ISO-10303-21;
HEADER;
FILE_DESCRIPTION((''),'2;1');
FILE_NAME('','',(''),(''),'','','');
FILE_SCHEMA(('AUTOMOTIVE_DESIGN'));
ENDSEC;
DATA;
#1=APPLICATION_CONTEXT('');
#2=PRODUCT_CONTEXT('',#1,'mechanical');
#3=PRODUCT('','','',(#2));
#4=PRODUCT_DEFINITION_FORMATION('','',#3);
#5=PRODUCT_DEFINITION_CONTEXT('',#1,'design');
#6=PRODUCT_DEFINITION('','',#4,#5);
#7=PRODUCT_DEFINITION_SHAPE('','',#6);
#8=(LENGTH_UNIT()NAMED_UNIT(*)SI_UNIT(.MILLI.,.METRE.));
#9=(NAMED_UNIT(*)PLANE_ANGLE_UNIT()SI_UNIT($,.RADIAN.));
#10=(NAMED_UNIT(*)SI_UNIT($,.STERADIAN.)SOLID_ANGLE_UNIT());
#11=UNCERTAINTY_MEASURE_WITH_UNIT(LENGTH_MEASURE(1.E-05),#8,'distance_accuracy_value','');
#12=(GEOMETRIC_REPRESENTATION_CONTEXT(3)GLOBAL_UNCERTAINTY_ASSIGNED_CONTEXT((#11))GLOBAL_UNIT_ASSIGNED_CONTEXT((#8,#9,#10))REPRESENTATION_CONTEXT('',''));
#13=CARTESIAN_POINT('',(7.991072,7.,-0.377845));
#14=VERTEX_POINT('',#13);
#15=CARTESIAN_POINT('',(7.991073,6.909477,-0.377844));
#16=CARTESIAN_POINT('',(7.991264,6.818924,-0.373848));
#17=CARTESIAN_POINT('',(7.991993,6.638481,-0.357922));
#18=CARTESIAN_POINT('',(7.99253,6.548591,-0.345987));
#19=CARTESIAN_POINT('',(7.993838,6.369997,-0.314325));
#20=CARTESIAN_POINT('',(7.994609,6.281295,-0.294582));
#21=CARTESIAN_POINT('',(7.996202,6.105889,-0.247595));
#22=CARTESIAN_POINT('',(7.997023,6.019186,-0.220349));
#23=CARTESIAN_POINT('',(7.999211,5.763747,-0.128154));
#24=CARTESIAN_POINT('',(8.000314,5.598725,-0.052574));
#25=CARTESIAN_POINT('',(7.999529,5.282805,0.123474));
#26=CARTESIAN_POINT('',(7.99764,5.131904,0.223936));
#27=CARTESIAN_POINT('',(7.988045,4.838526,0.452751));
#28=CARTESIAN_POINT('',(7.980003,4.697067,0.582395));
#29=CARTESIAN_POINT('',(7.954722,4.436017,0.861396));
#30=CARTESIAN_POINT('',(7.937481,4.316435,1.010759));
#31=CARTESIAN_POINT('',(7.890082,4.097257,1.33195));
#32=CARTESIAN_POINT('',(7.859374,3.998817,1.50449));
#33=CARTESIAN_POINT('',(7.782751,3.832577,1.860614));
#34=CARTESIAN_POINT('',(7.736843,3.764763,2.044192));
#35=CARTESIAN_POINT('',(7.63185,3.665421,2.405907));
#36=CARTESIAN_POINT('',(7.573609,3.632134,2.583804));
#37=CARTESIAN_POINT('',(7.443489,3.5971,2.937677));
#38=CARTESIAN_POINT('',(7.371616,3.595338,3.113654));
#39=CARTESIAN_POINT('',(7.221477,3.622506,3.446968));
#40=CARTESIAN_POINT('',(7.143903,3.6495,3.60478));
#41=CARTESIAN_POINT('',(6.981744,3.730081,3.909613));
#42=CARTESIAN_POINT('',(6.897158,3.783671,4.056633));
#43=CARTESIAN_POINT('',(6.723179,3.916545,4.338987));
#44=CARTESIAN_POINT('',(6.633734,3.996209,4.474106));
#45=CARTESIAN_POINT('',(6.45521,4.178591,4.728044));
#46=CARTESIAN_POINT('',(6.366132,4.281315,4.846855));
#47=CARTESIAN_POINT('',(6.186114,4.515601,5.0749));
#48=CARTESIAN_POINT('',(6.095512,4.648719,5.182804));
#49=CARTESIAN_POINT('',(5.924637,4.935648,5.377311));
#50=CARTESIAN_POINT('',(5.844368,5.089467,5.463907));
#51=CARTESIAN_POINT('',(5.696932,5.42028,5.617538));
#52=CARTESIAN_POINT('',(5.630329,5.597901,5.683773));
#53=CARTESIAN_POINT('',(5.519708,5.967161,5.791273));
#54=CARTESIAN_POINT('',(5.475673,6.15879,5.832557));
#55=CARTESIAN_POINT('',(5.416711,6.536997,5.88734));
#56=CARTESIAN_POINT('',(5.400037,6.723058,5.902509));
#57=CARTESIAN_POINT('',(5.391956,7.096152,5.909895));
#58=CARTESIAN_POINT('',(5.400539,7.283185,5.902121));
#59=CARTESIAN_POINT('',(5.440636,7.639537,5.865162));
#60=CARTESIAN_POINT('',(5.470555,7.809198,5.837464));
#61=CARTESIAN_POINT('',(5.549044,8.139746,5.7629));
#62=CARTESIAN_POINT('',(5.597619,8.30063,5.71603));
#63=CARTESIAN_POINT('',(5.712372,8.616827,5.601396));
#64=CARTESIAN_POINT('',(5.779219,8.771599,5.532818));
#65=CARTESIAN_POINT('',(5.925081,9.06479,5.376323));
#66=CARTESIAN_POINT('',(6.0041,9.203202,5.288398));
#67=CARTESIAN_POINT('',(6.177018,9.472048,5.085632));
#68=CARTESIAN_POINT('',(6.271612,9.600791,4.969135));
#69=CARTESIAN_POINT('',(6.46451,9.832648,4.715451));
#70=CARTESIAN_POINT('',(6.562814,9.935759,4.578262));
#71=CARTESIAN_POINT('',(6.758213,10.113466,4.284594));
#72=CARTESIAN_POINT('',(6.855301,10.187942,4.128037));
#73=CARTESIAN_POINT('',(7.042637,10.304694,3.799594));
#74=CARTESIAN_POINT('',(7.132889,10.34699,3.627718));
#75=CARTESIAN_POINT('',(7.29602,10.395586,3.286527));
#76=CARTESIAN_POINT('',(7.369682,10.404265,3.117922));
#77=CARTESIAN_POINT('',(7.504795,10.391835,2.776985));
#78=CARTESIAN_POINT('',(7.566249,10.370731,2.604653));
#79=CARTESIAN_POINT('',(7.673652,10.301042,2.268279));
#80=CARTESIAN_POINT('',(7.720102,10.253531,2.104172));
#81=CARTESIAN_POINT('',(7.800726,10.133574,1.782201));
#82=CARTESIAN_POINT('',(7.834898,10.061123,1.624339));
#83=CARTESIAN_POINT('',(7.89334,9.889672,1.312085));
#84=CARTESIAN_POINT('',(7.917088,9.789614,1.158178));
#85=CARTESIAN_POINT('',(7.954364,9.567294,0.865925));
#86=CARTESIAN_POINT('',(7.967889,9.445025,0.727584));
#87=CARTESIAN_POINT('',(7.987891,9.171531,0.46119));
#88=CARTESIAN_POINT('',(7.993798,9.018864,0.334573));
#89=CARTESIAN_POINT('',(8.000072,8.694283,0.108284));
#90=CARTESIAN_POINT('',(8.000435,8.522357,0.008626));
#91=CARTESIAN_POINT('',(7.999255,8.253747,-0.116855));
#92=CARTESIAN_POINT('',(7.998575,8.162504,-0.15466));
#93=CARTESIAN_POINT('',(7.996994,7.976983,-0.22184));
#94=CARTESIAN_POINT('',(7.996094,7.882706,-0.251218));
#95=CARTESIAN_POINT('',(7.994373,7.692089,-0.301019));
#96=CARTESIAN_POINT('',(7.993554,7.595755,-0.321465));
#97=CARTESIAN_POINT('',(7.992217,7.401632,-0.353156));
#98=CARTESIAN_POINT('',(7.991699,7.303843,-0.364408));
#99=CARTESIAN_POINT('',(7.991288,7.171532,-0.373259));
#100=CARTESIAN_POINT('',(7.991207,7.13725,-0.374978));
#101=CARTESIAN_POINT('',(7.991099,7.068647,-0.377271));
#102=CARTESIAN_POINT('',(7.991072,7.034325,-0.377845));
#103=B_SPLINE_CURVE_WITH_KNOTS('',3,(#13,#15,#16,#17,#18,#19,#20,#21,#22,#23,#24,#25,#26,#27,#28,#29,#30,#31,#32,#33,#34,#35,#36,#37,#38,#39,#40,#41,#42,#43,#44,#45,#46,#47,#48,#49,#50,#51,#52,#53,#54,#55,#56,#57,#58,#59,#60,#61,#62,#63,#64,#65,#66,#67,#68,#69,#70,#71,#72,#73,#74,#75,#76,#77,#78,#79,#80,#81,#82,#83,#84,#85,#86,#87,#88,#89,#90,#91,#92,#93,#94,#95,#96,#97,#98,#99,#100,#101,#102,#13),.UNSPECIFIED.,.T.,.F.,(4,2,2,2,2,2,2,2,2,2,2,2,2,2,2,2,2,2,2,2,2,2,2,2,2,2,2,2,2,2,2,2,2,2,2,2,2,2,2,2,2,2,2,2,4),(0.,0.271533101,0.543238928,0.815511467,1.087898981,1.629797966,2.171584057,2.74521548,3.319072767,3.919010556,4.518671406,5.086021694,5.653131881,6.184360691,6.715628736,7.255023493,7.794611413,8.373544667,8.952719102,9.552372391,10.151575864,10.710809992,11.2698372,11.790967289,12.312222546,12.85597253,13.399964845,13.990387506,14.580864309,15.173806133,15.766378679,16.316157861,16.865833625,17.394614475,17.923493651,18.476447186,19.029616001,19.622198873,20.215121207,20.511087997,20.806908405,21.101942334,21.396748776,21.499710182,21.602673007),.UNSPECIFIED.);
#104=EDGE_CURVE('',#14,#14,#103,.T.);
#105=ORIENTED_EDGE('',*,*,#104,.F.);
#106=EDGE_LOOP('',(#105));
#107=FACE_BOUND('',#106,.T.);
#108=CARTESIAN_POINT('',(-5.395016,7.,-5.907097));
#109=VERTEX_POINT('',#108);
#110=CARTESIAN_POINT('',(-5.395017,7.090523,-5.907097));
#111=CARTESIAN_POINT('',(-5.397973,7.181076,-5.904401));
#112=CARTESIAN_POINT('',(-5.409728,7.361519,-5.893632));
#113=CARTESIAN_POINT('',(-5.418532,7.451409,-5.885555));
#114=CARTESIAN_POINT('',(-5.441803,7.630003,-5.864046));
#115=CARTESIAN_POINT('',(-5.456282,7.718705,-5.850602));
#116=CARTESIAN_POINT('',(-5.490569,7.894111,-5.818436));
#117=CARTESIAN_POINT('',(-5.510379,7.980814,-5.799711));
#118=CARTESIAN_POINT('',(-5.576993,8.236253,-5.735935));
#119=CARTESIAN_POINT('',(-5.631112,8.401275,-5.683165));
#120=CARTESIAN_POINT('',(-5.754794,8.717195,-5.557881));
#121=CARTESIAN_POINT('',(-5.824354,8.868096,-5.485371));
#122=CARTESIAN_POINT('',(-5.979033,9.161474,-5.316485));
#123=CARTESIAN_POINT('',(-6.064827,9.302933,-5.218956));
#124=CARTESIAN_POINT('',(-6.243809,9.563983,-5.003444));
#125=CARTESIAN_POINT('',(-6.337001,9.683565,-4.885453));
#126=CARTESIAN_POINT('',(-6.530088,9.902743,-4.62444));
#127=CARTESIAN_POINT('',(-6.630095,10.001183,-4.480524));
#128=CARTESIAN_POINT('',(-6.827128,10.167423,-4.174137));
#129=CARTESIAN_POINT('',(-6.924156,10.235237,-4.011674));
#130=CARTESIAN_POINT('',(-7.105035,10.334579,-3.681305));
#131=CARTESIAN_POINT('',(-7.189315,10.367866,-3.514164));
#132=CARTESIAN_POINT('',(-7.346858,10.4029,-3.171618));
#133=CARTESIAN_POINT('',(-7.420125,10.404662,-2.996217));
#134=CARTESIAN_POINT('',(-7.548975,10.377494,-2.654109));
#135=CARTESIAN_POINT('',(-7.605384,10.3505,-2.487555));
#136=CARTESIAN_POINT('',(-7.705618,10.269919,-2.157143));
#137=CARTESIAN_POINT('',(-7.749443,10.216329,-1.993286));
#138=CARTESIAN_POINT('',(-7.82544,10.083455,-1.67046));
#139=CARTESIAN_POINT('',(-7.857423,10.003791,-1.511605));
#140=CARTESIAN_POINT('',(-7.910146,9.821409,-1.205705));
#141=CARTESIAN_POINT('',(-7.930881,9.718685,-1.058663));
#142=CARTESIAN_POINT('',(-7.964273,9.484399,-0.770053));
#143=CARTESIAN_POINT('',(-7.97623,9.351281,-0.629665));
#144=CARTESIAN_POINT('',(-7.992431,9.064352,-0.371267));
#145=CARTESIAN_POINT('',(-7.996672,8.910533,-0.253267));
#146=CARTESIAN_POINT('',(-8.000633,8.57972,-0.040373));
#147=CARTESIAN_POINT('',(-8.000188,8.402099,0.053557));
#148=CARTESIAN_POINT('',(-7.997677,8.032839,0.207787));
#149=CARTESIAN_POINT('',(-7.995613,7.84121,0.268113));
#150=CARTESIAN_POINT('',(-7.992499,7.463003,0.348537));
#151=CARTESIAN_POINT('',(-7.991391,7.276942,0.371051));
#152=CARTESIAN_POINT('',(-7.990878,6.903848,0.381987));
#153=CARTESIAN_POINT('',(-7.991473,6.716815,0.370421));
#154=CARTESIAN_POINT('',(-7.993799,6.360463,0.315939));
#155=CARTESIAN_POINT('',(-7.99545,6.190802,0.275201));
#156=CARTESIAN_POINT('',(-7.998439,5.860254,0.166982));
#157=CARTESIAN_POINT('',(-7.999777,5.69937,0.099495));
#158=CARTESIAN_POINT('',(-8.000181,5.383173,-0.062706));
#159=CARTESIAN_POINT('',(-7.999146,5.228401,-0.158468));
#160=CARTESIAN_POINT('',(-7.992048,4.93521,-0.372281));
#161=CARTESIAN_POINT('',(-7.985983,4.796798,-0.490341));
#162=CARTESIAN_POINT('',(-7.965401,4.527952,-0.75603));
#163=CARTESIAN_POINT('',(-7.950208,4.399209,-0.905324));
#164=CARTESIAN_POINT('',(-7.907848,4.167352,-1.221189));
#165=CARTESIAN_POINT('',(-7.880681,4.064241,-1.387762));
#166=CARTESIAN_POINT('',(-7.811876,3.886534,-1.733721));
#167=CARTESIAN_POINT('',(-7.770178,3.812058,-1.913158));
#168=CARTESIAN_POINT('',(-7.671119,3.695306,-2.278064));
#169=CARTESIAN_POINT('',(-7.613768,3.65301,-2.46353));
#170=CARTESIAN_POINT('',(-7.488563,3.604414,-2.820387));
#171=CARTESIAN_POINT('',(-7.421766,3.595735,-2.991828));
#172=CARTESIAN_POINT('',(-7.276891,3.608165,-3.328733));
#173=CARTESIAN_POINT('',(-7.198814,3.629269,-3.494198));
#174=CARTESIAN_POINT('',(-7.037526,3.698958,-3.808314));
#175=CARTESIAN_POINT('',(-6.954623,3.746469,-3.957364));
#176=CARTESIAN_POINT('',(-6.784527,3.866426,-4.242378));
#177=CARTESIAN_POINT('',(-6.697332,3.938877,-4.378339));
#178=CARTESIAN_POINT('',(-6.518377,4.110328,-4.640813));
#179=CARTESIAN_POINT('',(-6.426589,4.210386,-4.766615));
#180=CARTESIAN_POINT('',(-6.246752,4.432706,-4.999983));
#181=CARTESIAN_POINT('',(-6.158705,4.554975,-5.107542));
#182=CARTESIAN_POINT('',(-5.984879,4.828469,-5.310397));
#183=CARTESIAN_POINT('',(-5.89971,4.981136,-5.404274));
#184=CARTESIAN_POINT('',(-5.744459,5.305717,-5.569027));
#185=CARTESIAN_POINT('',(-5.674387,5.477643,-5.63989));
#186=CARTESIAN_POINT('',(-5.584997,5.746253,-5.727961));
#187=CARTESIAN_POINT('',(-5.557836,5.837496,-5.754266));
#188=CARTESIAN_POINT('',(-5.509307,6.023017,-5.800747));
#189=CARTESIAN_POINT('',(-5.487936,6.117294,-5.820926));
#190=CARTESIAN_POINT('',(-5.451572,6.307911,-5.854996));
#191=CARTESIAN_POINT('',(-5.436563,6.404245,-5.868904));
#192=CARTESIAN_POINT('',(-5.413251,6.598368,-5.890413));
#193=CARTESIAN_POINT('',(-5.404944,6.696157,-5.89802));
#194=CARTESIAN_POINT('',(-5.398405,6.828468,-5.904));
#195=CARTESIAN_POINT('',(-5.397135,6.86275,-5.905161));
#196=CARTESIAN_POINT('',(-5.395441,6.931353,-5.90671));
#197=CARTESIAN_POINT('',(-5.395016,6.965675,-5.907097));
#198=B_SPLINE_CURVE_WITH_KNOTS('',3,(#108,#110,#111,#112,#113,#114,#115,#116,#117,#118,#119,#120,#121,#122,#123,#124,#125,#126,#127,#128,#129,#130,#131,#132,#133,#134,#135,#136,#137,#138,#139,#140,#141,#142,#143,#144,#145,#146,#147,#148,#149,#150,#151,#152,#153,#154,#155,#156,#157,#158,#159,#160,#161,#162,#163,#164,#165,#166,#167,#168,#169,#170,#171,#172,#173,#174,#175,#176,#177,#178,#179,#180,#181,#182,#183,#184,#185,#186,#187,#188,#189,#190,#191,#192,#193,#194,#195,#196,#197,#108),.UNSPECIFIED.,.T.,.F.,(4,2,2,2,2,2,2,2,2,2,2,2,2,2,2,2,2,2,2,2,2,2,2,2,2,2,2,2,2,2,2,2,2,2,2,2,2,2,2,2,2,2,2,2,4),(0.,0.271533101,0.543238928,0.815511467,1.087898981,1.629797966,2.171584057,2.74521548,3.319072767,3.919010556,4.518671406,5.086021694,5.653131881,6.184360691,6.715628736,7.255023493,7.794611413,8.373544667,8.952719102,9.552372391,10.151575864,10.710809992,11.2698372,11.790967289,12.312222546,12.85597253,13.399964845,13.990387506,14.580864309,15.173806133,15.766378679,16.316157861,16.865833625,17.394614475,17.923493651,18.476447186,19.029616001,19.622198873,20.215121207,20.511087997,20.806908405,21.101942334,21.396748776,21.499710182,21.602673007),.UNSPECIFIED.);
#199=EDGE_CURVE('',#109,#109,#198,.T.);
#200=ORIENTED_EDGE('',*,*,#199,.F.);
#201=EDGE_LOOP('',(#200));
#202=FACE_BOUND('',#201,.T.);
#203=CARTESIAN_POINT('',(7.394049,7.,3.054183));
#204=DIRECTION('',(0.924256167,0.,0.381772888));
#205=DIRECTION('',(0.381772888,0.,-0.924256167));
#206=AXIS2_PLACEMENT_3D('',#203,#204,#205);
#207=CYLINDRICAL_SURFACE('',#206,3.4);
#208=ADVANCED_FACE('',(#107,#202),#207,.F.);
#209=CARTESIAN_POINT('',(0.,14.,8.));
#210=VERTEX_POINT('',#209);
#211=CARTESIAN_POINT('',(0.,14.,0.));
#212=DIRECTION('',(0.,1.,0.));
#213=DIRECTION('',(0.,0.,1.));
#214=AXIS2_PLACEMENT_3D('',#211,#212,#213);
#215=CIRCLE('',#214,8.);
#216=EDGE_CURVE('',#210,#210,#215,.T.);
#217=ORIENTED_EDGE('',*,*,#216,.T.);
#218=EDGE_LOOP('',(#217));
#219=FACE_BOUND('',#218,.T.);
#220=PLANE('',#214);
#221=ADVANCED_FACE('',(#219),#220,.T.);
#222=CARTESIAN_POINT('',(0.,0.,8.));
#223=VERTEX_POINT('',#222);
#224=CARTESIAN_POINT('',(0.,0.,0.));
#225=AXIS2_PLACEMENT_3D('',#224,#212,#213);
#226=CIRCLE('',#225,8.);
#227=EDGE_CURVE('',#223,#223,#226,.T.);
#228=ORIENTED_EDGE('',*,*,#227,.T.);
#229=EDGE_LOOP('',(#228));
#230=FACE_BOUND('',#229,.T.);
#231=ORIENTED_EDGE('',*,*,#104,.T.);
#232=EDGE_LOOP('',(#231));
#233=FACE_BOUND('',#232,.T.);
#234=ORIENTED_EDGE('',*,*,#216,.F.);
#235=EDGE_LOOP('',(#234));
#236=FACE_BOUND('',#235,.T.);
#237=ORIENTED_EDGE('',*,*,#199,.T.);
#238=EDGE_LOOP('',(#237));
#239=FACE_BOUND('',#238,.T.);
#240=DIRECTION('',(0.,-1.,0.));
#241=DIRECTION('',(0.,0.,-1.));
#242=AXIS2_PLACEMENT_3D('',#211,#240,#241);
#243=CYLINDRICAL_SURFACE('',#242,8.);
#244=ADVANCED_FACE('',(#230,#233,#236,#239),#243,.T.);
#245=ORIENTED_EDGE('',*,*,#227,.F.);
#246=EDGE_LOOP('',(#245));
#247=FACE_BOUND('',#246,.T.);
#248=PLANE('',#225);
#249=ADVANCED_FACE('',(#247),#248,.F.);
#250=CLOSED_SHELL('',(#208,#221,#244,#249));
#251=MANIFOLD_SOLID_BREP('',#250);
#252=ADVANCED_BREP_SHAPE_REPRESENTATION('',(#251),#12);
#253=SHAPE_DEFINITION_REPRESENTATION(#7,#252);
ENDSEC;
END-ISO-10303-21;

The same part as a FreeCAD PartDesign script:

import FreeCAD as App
import Part
import Sketcher

V = App.Vector

doc = App.newDocument("Part")
body = doc.addObject("PartDesign::Body", "Body")

# Sketch on XZ plane
sketch1 = body.newObject("Sketcher::SketchObject", "Sketch")
sketch1.AttachmentSupport = (doc.getObject("XZ_Plane"), [""])
sketch1.MapMode = "FlatFace"
sketch1.addGeometry(Part.Circle(V(0, 0, 0), V(0, 0, 1), 8), False)
sketch1.addConstraint(Sketcher.Constraint("Coincident", 0, 3, -1, 1))
sketch1.addConstraint(Sketcher.Constraint("Diameter", 0, 16.0))
pad1 = body.newObject("PartDesign::Pad", "Pad")
pad1.Profile = sketch1
pad1.Length = 14
pad1.Reversed = True

# Sketch on an angled plane
sketch2 = body.newObject("Sketcher::SketchObject", "Sketch001")
sketch2.Placement = App.Placement(V(7.394049, 0, 3.054183), App.Rotation(V(-0.381772888, 0, 0.924256167), V(0, -1, 0), V(0.924256167, 0, 0.381772888), "ZXY"))
sketch2.addGeometry(Part.Circle(V(0, -7, 0), V(0, 0, 1), 3.4), False)
sketch2.addConstraint(Sketcher.Constraint("PointOnObject", 0, 3, -2))
sketch2.addConstraint(Sketcher.Constraint("Diameter", 0, 6.8))
sketch2.addConstraint(Sketcher.Constraint("DistanceY", 0, 3, -1, 1, 7.0))
doc.recompute()
hole = body.newObject("PartDesign::Hole", "Hole")
hole.Profile = sketch2
hole.ThreadType = "None"
hole.Diameter = 6.8
hole.DepthType = "ThroughAll"

doc.recompute()
